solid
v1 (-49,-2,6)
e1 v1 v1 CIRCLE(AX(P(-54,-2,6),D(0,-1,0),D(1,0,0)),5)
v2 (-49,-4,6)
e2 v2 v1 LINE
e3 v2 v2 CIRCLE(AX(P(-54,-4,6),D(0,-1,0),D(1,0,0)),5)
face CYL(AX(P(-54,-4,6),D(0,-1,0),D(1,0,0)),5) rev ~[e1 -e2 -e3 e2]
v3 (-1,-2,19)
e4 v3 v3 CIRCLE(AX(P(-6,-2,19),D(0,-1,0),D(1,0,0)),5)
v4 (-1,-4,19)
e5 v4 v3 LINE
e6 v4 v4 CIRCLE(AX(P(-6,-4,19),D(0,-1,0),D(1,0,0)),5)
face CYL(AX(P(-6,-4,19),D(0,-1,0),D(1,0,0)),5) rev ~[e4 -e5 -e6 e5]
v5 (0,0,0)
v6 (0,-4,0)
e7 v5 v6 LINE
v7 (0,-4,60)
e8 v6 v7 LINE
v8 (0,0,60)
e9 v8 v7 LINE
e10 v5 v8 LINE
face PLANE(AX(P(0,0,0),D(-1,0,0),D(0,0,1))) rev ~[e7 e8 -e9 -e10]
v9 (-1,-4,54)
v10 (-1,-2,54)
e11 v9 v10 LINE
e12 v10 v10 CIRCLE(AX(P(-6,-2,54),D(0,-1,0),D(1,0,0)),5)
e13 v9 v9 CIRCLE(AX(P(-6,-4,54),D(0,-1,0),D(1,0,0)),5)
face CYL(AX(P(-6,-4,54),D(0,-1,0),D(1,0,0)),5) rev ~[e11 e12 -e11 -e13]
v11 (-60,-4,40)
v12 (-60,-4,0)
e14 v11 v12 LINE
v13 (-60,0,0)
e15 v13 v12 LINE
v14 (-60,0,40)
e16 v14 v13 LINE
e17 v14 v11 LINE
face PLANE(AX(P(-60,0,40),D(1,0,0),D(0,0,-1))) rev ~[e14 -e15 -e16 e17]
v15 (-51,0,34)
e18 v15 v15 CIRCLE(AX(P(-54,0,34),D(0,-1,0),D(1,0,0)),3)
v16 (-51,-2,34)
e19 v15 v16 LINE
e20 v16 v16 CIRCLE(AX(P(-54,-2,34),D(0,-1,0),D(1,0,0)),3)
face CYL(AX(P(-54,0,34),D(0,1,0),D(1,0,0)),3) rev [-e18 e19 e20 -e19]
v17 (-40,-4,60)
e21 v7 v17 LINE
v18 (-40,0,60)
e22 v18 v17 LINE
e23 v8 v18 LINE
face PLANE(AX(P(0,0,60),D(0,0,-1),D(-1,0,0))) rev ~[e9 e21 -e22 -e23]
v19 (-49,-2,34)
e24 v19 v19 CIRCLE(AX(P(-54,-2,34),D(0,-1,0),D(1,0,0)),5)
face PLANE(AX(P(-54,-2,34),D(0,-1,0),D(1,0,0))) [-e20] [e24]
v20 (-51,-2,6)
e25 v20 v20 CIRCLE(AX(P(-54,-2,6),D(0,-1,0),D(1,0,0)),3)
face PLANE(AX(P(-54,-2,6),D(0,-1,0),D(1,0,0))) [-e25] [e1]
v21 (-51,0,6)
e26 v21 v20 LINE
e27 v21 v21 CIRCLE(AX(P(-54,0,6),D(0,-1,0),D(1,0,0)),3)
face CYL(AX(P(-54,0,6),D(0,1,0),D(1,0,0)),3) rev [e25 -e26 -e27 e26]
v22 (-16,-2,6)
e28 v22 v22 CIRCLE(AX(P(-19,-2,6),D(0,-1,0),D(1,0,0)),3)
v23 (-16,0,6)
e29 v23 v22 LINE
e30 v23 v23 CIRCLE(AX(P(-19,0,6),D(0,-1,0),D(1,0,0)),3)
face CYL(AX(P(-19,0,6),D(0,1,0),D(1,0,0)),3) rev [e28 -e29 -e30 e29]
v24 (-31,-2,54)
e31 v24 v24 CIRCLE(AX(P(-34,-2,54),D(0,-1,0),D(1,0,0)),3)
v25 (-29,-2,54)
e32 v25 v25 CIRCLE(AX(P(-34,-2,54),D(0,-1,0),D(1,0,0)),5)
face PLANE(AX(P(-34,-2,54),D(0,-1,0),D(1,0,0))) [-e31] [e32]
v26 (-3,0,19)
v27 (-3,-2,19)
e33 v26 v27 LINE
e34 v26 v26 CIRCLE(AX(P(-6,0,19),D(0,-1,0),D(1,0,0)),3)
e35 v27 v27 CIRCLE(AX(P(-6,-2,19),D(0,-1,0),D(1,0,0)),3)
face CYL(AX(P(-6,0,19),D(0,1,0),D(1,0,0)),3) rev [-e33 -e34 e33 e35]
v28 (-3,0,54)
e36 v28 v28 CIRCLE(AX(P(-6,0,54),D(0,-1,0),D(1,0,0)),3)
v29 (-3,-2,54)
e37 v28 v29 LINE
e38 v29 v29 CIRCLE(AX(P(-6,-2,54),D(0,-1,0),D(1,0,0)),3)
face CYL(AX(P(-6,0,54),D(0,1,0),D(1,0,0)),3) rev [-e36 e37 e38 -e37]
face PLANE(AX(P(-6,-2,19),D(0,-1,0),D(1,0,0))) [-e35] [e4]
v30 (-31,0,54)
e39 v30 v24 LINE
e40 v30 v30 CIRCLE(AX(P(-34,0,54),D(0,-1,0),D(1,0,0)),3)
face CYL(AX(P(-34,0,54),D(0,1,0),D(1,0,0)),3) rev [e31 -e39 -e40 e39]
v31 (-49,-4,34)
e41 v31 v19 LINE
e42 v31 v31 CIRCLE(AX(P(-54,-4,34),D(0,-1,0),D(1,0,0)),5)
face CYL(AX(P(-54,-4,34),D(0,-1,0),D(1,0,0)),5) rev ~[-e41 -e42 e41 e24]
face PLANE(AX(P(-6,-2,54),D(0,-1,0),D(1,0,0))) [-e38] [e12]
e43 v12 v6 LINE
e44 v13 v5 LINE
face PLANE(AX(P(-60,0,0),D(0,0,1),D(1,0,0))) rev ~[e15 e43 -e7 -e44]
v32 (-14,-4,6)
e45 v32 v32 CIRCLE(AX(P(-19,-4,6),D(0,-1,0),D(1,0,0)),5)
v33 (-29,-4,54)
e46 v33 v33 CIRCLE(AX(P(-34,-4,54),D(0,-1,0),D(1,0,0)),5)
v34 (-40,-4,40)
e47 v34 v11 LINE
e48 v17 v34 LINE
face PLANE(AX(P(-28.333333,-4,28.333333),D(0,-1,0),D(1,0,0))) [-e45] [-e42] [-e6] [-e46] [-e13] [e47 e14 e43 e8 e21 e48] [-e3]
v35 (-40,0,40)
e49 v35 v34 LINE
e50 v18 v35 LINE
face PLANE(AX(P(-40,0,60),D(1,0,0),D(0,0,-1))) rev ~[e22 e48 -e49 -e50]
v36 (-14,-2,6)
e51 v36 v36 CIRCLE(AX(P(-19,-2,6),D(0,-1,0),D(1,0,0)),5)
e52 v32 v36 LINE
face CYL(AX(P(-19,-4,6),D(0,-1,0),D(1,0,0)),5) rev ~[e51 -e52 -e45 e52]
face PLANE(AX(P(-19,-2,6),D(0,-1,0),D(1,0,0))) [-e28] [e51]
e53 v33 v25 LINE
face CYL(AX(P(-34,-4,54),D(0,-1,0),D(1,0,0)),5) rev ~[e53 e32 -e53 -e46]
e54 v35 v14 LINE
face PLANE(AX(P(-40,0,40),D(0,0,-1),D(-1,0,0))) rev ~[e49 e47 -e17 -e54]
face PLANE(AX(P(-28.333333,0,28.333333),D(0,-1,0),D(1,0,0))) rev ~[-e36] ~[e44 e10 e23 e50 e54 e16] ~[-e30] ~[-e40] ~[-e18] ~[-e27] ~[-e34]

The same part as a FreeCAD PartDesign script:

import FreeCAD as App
import Part
import Sketcher

V = App.Vector

doc = App.newDocument("Part")
body = doc.addObject("PartDesign::Body", "Body")

# Sketch on XZ plane
sketch1 = doc.addObject("Sketcher::SketchObject", "Sketch")
body.addObject(sketch1)
sketch1.AttachmentSupport = (doc.XZ_Plane, [""])
sketch1.MapMode = "FlatFace"
sketch1.addGeometry([
    Part.LineSegment(V(-60, 0, 0), V(0, 0, 0)),  # 0
    Part.LineSegment(V(0, 0, 0), V(0, 60, 0)),  # 1
    Part.LineSegment(V(0, 60, 0), V(-40, 60, 0)),  # 2
    Part.LineSegment(V(-40, 60, 0), V(-40, 40, 0)),  # 3
    Part.LineSegment(V(-40, 40, 0), V(-60, 40, 0)),  # 4
    Part.LineSegment(V(-60, 40, 0), V(-60, 0, 0)),  # 5
    Part.Circle(V(-54, 6, 0), V(0, 0, 1), 3),  # 6
    Part.Circle(V(-19, 6, 0), V(0, 0, 1), 3),  # 7
    Part.Circle(V(-6, 19, 0), V(0, 0, 1), 3),  # 8
    Part.Circle(V(-54, 34, 0), V(0, 0, 1), 3),  # 9
    Part.Circle(V(-34, 54, 0), V(0, 0, 1), 3),  # 10
    Part.Circle(V(-6, 54, 0), V(0, 0, 1), 3),  # 11
], False)
sketch1.addConstraint([
    Sketcher.Constraint("Coincident", 0, 2, 1, 1),
    Sketcher.Constraint("Coincident", 1, 2, 2, 1),
    Sketcher.Constraint("Coincident", 2, 2, 3, 1),
    Sketcher.Constraint("Coincident", 3, 2, 4, 1),
    Sketcher.Constraint("Coincident", 4, 2, 5, 1),
    Sketcher.Constraint("Coincident", 5, 2, 0, 1),
    Sketcher.Constraint("Horizontal", 0),
    Sketcher.Constraint("Vertical", 1),
    Sketcher.Constraint("Horizontal", 2),
    Sketcher.Constraint("Vertical", 3),
    Sketcher.Constraint("Horizontal", 4),
    Sketcher.Constraint("Vertical", 5),
    Sketcher.Constraint("Coincident", 0, 2, -1, 1),
    Sketcher.Constraint("Equal", 6, 7),
    Sketcher.Constraint("Equal", 7, 8),
    Sketcher.Constraint("Equal", 8, 9),
    Sketcher.Constraint("Equal", 9, 10),
    Sketcher.Constraint("Equal", 10, 11),
    Sketcher.Constraint("Horizontal", 6, 3, 7, 3),
    Sketcher.Constraint("Horizontal", 10, 3, 11, 3),
    Sketcher.Constraint("Vertical", 6, 3, 9, 3),
    Sketcher.Constraint("Vertical", 8, 3, 11, 3),
    Sketcher.Constraint("Equal", 0, 1),
    Sketcher.Constraint("Equal", 4, 3),
    Sketcher.Constraint("Diameter", 6, 6.0),
    Sketcher.Constraint("DistanceX", 0, 1, 0, 2, 60.0),
    Sketcher.Constraint("DistanceX", 2, 2, 2, 1, 40.0),
    Sketcher.Constraint("DistanceX", 6, 3, -1, 1, 54.0),
    Sketcher.Constraint("DistanceY", -1, 1, 6, 3, 6.0),
    Sketcher.Constraint("DistanceX", 7, 3, -1, 1, 19.0),
    Sketcher.Constraint("DistanceX", 8, 3, -1, 1, 6.0),
    Sketcher.Constraint("DistanceY", -1, 1, 8, 3, 19.0),
    Sketcher.Constraint("DistanceY", -1, 1, 9, 3, 34.0),
    Sketcher.Constraint("DistanceX", 10, 3, -1, 1, 34.0),
    Sketcher.Constraint("DistanceY", -1, 1, 10, 3, 54.0),
])
pad1 = doc.addObject("PartDesign::Pad", "Pad")
body.addObject(pad1)
pad1.Profile = sketch1
pad1.Length = 4

# Sketch on XZ plane
sketch2 = doc.addObject("Sketcher::SketchObject", "Sketch001")
body.addObject(sketch2)
sketch2.AttachmentSupport = (doc.XZ_Plane, [""])
sketch2.MapMode = "FlatFace"
sketch2.AttachmentOffset = App.Placement(V(0, 0, 4), App.Rotation())
sketch2.addGeometry([
    Part.Circle(V(-54, 34, 0), V(0, 0, 1), 5),  # 0
    Part.Circle(V(-54, 34, 0), V(0, 0, 1), 3),  # 1
    Part.Circle(V(-34, 54, 0), V(0, 0, 1), 5),  # 2
    Part.Circle(V(-34, 54, 0), V(0, 0, 1), 3),  # 3
    Part.Circle(V(-6, 54, 0), V(0, 0, 1), 5),  # 4
    Part.Circle(V(-6, 54, 0), V(0, 0, 1), 3),  # 5
    Part.Circle(V(-6, 19, 0), V(0, 0, 1), 5),  # 6
    Part.Circle(V(-6, 19, 0), V(0, 0, 1), 3),  # 7
    Part.Circle(V(-19, 6, 0), V(0, 0, 1), 5),  # 8
    Part.Circle(V(-19, 6, 0), V(0, 0, 1), 3),  # 9
    Part.Circle(V(-54, 6, 0), V(0, 0, 1), 5),  # 10
    Part.Circle(V(-54, 6, 0), V(0, 0, 1), 3),  # 11
], False)
sketch2.addConstraint([
    Sketcher.Constraint("Coincident", 1, 3, 0, 3),
    Sketcher.Constraint("Coincident", 3, 3, 2, 3),
    Sketcher.Constraint("Coincident", 5, 3, 4, 3),
    Sketcher.Constraint("Coincident", 7, 3, 6, 3),
    Sketcher.Constraint("Coincident", 9, 3, 8, 3),
    Sketcher.Constraint("Coincident", 11, 3, 10, 3),
    Sketcher.Constraint("Equal", 0, 2),
    Sketcher.Constraint("Equal", 1, 3),
    Sketcher.Constraint("Equal", 2, 4),
    Sketcher.Constraint("Equal", 3, 5),
    Sketcher.Constraint("Equal", 4, 6),
    Sketcher.Constraint("Equal", 5, 7),
    Sketcher.Constraint("Equal", 6, 8),
    Sketcher.Constraint("Equal", 7, 9),
    Sketcher.Constraint("Equal", 8, 10),
    Sketcher.Constraint("Equal", 9, 11),
    Sketcher.Constraint("Horizontal", 3, 3, 4, 3),
    Sketcher.Constraint("Horizontal", 9, 3, 10, 3),
    Sketcher.Constraint("Vertical", 5, 3, 6, 3),
    Sketcher.Constraint("Vertical", 1, 3, 10, 3),
    Sketcher.Constraint("Diameter", 0, 10.0),
    Sketcher.Constraint("Diameter", 1, 6.0),
    Sketcher.Constraint("DistanceX", 0, 3, -1, 1, 54.0),
    Sketcher.Constraint("DistanceY", -1, 1, 0, 3, 34.0),
    Sketcher.Constraint("DistanceX", 2, 3, -1, 1, 34.0),
    Sketcher.Constraint("DistanceY", -1, 1, 2, 3, 54.0),
    Sketcher.Constraint("DistanceX", 4, 3, -1, 1, 6.0),
    Sketcher.Constraint("DistanceY", -1, 1, 6, 3, 19.0),
    Sketcher.Constraint("DistanceX", 8, 3, -1, 1, 19.0),
    Sketcher.Constraint("DistanceY", -1, 1, 8, 3, 6.0),
])
pocket1 = doc.addObject("PartDesign::Pocket", "Pocket")
body.addObject(pocket1)
pocket1.Profile = sketch2
pocket1.Length = 2

doc.recompute()
